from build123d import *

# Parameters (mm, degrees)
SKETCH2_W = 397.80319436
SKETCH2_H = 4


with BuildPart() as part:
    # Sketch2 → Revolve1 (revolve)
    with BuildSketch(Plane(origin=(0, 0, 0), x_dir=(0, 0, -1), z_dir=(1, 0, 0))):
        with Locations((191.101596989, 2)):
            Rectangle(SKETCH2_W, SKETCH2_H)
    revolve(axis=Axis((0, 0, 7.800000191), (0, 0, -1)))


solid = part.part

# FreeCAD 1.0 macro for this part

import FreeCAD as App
import Part
import Sketcher
from FreeCAD import Vector


def add_polygon(sketch, points):
    """Adds a closed chain of lines whose ends are joined by coincident constraints."""
    first, n = sketch.GeometryCount, len(points)
    for a, b in zip(points, points[1:] + points[:1]):
        sketch.addGeometry(Part.LineSegment(App.Vector(*a, 0), App.Vector(*b, 0)), False)
    for i in range(n):
        sketch.addConstraint(Sketcher.Constraint("Coincident", first + i, 2, first + (i + 1) % n, 1))

doc = App.newDocument("Part")
params = doc.addObject("Spreadsheet::Sheet", "Params")
for row, (alias, value) in enumerate([
    ("sketch1_width", "4 mm"),
    ("revolution_angle", "360 deg"),
], start=1):
    params.set(f"A{row}", alias)
    params.set(f"B{row}", "=" + value)
    params.setAlias(f"B{row}", alias)

body = doc.addObject("PartDesign::Body", "Body")

sketch1 = body.newObject("Sketcher::SketchObject", "Sketch")
sketch1.AttachmentSupport = (doc.getObject("YZ_Plane"), [""])
sketch1.MapMode = "FlatFace"
add_polygon(sketch1, [(4, 7.8), (0, 7.8), (0, -390), (4, -390)])
sketch1.addConstraint([
    Sketcher.Constraint("Horizontal", 0),
    Sketcher.Constraint("Vertical", 1),
    Sketcher.Constraint("Horizontal", 2),
    Sketcher.Constraint("Vertical", 3),
    Sketcher.Constraint("PointOnObject", 0, 2, -2),
    Sketcher.Constraint("DistanceX", 0, 2, 0, 1, 4.0),
    Sketcher.Constraint("DistanceY", -1, 1, 0, 2, 7.8),
    Sketcher.Constraint("DistanceY", 1, 2, 1, 1, 397.803194),
])
sketch1.setExpression("Constraints[9]", "Params.sketch1_width")
revolution = body.newObject("PartDesign::Revolution", "Revolution")
revolution.Profile = sketch1
revolution.ReferenceAxis = (sketch1, ["V_Axis"])
revolution.setExpression("Angle", "Params.revolution_angle")

doc.recompute()
